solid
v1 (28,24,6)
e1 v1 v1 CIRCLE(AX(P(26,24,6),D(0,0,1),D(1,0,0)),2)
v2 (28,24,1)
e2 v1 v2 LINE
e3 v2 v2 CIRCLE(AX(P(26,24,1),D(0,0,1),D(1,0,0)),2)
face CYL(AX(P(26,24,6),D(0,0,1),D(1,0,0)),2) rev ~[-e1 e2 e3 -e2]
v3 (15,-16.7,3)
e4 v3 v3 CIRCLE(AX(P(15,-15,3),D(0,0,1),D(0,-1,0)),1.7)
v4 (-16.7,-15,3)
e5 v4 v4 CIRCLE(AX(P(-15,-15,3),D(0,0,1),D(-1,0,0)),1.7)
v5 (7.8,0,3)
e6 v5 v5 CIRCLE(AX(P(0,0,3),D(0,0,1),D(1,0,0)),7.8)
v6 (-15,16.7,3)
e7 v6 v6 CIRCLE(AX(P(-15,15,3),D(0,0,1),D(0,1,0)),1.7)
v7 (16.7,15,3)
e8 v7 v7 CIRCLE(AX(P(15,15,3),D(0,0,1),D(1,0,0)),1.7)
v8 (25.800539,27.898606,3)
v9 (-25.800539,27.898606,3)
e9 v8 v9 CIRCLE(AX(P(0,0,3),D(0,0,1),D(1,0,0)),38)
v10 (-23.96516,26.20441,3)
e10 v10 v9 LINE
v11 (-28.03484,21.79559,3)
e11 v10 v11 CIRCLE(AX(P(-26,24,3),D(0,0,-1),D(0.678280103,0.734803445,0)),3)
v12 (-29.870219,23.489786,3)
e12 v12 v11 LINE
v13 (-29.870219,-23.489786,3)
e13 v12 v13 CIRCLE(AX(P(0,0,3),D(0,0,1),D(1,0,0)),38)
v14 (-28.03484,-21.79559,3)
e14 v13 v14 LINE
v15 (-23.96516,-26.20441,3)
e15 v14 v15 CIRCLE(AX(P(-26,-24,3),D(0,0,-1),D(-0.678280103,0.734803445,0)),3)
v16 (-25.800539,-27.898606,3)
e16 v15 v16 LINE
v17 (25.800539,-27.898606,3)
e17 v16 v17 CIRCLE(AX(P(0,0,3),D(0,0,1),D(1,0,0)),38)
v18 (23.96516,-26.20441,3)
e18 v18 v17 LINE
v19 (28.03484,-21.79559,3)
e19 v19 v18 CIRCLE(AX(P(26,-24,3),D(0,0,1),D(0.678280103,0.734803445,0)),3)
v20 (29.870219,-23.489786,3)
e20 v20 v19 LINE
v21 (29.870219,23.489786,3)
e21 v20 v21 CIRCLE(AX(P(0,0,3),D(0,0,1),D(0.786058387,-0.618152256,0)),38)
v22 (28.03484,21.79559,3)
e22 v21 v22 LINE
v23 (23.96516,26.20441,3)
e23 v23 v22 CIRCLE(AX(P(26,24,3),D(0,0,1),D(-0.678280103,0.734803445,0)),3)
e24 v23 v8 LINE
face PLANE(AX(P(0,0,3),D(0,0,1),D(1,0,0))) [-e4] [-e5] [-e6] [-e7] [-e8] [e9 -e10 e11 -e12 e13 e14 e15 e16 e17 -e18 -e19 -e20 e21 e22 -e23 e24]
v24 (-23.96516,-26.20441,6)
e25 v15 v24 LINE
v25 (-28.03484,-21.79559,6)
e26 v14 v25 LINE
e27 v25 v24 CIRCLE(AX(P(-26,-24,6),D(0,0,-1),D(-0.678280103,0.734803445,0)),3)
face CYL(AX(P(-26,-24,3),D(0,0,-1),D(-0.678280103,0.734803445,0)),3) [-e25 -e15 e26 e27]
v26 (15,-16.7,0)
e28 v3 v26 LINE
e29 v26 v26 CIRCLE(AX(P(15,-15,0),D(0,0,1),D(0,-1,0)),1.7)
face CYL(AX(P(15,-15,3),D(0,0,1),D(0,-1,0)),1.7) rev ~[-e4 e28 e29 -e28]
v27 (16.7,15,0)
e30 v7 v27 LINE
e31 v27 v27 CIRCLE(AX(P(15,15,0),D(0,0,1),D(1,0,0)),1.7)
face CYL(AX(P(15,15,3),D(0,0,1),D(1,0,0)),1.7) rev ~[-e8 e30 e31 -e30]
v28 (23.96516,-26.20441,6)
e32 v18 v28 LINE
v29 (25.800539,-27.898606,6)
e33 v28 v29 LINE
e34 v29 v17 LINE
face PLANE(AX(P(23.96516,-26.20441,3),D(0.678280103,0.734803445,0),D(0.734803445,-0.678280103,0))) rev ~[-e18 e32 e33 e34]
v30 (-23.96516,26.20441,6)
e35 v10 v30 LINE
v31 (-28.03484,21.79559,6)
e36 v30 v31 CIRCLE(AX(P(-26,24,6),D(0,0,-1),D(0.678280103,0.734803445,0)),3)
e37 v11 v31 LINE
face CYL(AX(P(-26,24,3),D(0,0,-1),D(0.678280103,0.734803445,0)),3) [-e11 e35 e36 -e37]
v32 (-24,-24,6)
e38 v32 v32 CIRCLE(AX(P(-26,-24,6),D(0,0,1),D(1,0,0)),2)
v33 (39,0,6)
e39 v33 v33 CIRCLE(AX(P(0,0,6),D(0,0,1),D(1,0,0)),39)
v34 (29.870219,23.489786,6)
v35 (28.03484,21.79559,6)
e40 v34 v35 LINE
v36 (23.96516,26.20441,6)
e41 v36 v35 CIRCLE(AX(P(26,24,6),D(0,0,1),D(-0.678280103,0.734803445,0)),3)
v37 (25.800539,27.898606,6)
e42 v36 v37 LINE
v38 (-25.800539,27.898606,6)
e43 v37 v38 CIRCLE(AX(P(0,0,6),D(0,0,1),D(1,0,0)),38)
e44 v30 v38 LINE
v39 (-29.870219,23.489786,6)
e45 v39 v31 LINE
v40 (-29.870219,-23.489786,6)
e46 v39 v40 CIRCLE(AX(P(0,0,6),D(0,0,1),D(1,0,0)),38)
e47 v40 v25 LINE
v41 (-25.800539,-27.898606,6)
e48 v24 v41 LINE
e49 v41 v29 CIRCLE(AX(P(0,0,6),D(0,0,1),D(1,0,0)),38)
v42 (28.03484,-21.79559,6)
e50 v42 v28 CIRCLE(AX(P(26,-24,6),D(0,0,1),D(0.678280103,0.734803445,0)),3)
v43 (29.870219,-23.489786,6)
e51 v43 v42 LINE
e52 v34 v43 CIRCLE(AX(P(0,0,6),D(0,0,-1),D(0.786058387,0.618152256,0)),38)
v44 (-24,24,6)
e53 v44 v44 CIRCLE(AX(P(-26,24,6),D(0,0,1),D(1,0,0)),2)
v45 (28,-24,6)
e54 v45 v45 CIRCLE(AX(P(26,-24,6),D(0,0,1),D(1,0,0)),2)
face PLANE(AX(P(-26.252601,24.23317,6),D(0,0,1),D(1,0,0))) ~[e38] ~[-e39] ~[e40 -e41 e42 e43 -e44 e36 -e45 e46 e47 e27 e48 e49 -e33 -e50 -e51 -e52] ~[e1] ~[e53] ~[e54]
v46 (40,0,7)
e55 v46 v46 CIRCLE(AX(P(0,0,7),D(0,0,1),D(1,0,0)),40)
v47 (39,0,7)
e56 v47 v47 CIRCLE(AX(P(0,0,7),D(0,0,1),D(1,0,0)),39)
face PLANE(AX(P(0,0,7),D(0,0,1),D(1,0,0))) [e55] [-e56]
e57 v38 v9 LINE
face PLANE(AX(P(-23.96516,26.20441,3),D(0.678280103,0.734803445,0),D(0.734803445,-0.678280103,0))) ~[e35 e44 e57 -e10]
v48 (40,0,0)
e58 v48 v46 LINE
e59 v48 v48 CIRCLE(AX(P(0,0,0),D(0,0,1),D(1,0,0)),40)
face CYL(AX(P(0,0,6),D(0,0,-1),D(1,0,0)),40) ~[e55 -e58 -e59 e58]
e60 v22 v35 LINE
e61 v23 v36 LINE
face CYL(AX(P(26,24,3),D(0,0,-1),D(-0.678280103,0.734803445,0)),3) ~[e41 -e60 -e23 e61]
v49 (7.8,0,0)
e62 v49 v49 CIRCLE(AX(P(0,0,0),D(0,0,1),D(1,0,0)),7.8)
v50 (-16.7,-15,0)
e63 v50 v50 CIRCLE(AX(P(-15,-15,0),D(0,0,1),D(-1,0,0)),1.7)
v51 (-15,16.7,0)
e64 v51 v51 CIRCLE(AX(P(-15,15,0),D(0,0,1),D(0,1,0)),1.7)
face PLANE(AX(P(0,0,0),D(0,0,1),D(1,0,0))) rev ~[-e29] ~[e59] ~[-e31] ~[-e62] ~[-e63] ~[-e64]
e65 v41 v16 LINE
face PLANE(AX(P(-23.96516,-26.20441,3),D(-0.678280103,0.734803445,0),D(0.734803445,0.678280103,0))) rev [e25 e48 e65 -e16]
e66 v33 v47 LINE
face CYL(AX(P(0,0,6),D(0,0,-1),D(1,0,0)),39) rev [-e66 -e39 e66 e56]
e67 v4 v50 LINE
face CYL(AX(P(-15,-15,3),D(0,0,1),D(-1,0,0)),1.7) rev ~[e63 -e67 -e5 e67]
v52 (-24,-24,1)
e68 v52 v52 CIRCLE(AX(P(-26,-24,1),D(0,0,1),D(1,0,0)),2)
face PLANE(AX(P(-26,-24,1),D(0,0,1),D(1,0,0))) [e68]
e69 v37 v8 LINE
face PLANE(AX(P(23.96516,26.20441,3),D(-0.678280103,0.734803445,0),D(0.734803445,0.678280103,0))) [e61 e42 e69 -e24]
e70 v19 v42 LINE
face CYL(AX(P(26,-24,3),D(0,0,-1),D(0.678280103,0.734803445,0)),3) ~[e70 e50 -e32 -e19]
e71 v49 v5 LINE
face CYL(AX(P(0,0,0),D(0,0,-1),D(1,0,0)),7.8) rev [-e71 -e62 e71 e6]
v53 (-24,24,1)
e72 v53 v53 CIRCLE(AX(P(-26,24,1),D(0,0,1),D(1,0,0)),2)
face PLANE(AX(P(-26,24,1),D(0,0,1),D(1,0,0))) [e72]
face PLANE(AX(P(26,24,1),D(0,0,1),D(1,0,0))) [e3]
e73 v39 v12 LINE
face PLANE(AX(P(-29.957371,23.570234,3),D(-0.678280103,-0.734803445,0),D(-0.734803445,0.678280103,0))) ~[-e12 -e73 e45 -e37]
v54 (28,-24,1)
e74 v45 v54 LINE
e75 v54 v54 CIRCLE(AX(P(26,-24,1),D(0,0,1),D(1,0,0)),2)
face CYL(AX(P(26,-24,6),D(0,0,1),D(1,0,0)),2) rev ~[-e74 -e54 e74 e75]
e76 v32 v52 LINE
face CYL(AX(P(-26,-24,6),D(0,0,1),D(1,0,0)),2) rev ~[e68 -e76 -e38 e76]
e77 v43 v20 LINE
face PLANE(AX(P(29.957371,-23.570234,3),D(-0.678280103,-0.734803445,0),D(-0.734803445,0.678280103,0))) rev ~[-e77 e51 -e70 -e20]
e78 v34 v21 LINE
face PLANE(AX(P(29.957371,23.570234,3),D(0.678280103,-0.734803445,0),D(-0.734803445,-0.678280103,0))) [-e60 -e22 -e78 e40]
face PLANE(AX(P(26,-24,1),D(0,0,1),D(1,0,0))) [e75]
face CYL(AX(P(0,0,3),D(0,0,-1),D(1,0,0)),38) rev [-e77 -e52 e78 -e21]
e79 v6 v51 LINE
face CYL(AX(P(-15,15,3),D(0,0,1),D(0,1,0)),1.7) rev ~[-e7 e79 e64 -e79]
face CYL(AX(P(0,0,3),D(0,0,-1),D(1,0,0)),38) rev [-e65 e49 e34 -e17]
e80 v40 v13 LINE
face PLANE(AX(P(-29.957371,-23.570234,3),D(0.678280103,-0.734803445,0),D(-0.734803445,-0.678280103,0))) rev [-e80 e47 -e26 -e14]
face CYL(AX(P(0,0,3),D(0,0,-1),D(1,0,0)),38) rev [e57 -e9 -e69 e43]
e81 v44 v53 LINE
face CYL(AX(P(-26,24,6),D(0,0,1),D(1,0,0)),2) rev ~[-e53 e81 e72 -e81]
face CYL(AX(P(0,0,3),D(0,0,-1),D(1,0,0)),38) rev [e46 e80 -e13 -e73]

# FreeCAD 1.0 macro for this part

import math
import FreeCAD as App
import Part
import Sketcher
from FreeCAD import Vector
Q = App.Units.Quantity

doc = App.newDocument("Part")
body = doc.addObject("PartDesign::Body", "Body")

# Sketch on XY plane
sketch1 = body.newObject("Sketcher::SketchObject", "Sketch")
sketch1.AttachmentSupport = (doc.getObject("XY_Plane"), [""])
sketch1.MapMode = "FlatFace"
sketch1.addGeometry([
    Part.Circle(Vector(0, 0, 0), Vector(0, 0, 1), 40),
    Part.Circle(Vector(0, 0, 0), Vector(0, 0, 1), 8),
], False)
sketch1.addConstraint([
    Sketcher.Constraint("Coincident", 0, 3, -1, 1),
    Sketcher.Constraint("Coincident", 1, 3, -1, 1),
    Sketcher.Constraint("Diameter", 0, Q("80 mm")),
    Sketcher.Constraint("Diameter", 1, Q("15.6 mm")),
])
pad1 = body.newObject("PartDesign::Pad", "Pad")
pad1.Profile = sketch1
pad1.Length = 3

# Sketch on XY plane
sketch2 = body.newObject("Sketcher::SketchObject", "Sketch001")
sketch2.AttachmentSupport = (doc.getObject("XY_Plane"), [""])
sketch2.MapMode = "FlatFace"
sketch2.AttachmentOffset = App.Placement(Vector(0, 0, 3), App.Rotation())
sketch2.addGeometry(Part.Circle(Vector(15, 15, 0), Vector(0, 0, 1), 1.7), False)
sketch2.addConstraint([
    Sketcher.Constraint("Diameter", 0, Q("3.4 mm")),
    Sketcher.Constraint("DistanceX", -1, 1, 0, 3, Q("15 mm")),
    Sketcher.Constraint("DistanceY", -1, 1, 0, 3, Q("15 mm")),
])
pocket1 = body.newObject("PartDesign::Pocket", "Pocket")
pocket1.Profile = sketch2
pocket1.Type = "ThroughAll"
doc.recompute()

polarpattern = body.newObject("PartDesign::PolarPattern", "PolarPattern")
polarpattern.Originals = [pocket1]
polarpattern.Axis = (doc.getObject("Z_Axis"), [""])
polarpattern.Angle = 360
polarpattern.Occurrences = 4
body.Tip = polarpattern

# Sketch on XY plane
sketch3 = body.newObject("Sketcher::SketchObject", "Sketch002")
sketch3.AttachmentSupport = (doc.getObject("XY_Plane"), [""])
sketch3.MapMode = "FlatFace"
sketch3.AttachmentOffset = App.Placement(Vector(0, 0, 3), App.Rotation())
sketch3.addGeometry([
    Part.Circle(Vector(0, 0, 0), Vector(0, 0, 1), 40),
    Part.Circle(Vector(0, 0, 0), Vector(0, 0, 1), 38),
], False)
sketch3.addConstraint([
    Sketcher.Constraint("Coincident", 0, 3, -1, 1),
    Sketcher.Constraint("Coincident", 1, 3, -1, 1),
    Sketcher.Constraint("Diameter", 0, Q("80 mm")),
    Sketcher.Constraint("Diameter", 1, Q("76 mm")),
])
pad2 = body.newObject("PartDesign::Pad", "Pad001")
pad2.Profile = sketch3
pad2.Length = 3

# Sketch on XY plane
sketch4 = body.newObject("Sketcher::SketchObject", "Sketch003")
sketch4.AttachmentSupport = (doc.getObject("XY_Plane"), [""])
sketch4.MapMode = "FlatFace"
sketch4.AttachmentOffset = App.Placement(Vector(0, 0, 6), App.Rotation())
sketch4.addGeometry([
    Part.Circle(Vector(0, 0, 0), Vector(0, 0, 1), 40),
    Part.Circle(Vector(0, 0, 0), Vector(0, 0, 1), 39),
], False)
sketch4.addConstraint([
    Sketcher.Constraint("Coincident", 0, 3, -1, 1),
    Sketcher.Constraint("Coincident", 1, 3, -1, 1),
    Sketcher.Constraint("Diameter", 0, Q("80 mm")),
    Sketcher.Constraint("Diameter", 1, Q("78 mm")),
])
pad3 = body.newObject("PartDesign::Pad", "Pad002")
pad3.Profile = sketch4
pad3.Length = 1

# Sketch on XY plane
sketch5 = body.newObject("Sketcher::SketchObject", "Sketch004")
sketch5.AttachmentSupport = (doc.getObject("XY_Plane"), [""])
sketch5.MapMode = "FlatFace"
sketch5.AttachmentOffset = App.Placement(Vector(0, 0, 3), App.Rotation())
sketch5.addGeometry([
    Part.ArcOfCircle(Part.Circle(Vector(26, 24, 0), Vector(0, 0, 1), 3), math.radians(133), math.radians(313)),  # 0
    Part.LineSegment(Vector(28, 21.8, 0), Vector(30, 23.6, 0)),  # 1
    Part.LineSegment(Vector(30, 23.6, 0), Vector(25.9, 28, 0)),  # 2
    Part.LineSegment(Vector(25.9, 28, 0), Vector(24, 26.2, 0)),  # 3
    Part.ArcOfCircle(Part.Circle(Vector(26, -24, 0), Vector(0, 0, 1), 3), math.radians(47), math.radians(227)),  # 4
    Part.LineSegment(Vector(24, -26.2, 0), Vector(25.9, -28, 0)),  # 5
    Part.LineSegment(Vector(25.9, -28, 0), Vector(30, -23.6, 0)),  # 6
    Part.LineSegment(Vector(30, -23.6, 0), Vector(28, -21.8, 0)),  # 7
], False)
sketch5.addConstraint([
    Sketcher.Constraint("Tangent", 0, 2, 1, 1),
    Sketcher.Constraint("Coincident", 1, 2, 2, 1),
    Sketcher.Constraint("Coincident", 2, 2, 3, 1),
    Sketcher.Constraint("Tangent", 3, 2, 0, 1),
    Sketcher.Constraint("Tangent", 4, 2, 5, 1),
    Sketcher.Constraint("Coincident", 5, 2, 6, 1),
    Sketcher.Constraint("Coincident", 6, 2, 7, 1),
    Sketcher.Constraint("Tangent", 7, 2, 4, 1),
    Sketcher.Constraint("Equal", 0, 4),
    Sketcher.Constraint("Symmetric", 0, 3, 4, 3, -1),
    Sketcher.Constraint("Symmetric", 2, 2, 5, 2, -1),
    Sketcher.Constraint("Symmetric", 1, 2, 6, 2, -1),
    Sketcher.Constraint("Perpendicular", 1, 2),
    Sketcher.Constraint("Perpendicular", 2, 3),
    Sketcher.Constraint("Radius", 0, Q("3 mm")),
    Sketcher.Constraint("DistanceX", -1, 1, 0, 3, Q("26 mm")),
    Sketcher.Constraint("DistanceY", -1, 1, 0, 3, Q("24 mm")),
    Sketcher.Constraint("Distance", 1, Q("2.616388 mm")),
    Sketcher.Constraint("DistanceX", -1, 1, 0, 2, Q("28.03484 mm")),
])
pad4 = body.newObject("PartDesign::Pad", "Pad003")
pad4.Profile = sketch5
pad4.Length = 3
doc.recompute()

mirrored = body.newObject("PartDesign::Mirrored", "Mirrored")
mirrored.Originals = [pad4]
mirrored.MirrorPlane = (doc.getObject("YZ_Plane"), [""])
body.Tip = mirrored

# Sketch on XY plane
sketch6 = body.newObject("Sketcher::SketchObject", "Sketch005")
sketch6.AttachmentSupport = (doc.getObject("XY_Plane"), [""])
sketch6.MapMode = "FlatFace"
sketch6.AttachmentOffset = App.Placement(Vector(0, 0, 6), App.Rotation())
sketch6.addGeometry([
    Part.Circle(Vector(-26, 24, 0), Vector(0, 0, 1), 2),
    Part.Circle(Vector(-26, -24, 0), Vector(0, 0, 1), 2),
    Part.Circle(Vector(26, -24, 0), Vector(0, 0, 1), 2),
    Part.Circle(Vector(26, 24, 0), Vector(0, 0, 1), 2),
], False)
sketch6.addConstraint([
    Sketcher.Constraint("Equal", 0, 1),
    Sketcher.Constraint("Equal", 1, 2),
    Sketcher.Constraint("Equal", 2, 3),
    Sketcher.Constraint("Symmetric", 0, 3, 2, 3, -1, 1),
    Sketcher.Constraint("Symmetric", 1, 3, 3, 3, -1, 1),
    Sketcher.Constraint("Symmetric", 1, 3, 2, 3, -2),
    Sketcher.Constraint("Diameter", 0, Q("4 mm")),
    Sketcher.Constraint("DistanceX", 0, 3, -1, 1, Q("26 mm")),
    Sketcher.Constraint("DistanceY", -1, 1, 0, 3, Q("24 mm")),
])
pocket2 = body.newObject("PartDesign::Pocket", "Pocket001")
pocket2.Profile = sketch6
pocket2.Length = 5

doc.recompute()
